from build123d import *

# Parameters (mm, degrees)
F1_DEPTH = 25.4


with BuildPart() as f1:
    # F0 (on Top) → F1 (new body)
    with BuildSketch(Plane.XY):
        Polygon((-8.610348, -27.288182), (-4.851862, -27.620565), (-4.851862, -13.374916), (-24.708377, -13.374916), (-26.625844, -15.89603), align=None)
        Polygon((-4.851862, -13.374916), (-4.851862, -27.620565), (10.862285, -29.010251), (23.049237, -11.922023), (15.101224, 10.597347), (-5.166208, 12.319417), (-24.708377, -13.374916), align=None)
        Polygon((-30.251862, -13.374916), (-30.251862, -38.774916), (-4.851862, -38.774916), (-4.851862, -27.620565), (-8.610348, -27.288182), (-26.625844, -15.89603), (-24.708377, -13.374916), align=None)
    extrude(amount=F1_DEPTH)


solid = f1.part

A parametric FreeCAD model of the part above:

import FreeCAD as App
import Part
import Sketcher

V = App.Vector
Q = App.Units.Quantity

doc = App.newDocument("Part")
body = doc.addObject("PartDesign::Body", "Body")

# Sketch on XY plane
sketch1 = doc.addObject("Sketcher::SketchObject", "Sketch")
body.addObject(sketch1)
sketch1.AttachmentSupport = (doc.XY_Plane, [""])
sketch1.MapMode = "FlatFace"
sketch1.addGeometry([
    Part.LineSegment(V(-4.851862, -27.620565, 0), V(10.862285, -29.010251, 0)),  # 0
    Part.LineSegment(V(10.862285, -29.010251, 0), V(23.049237, -11.922023, 0)),  # 1
    Part.LineSegment(V(23.049237, -11.922023, 0), V(15.101224, 10.597347, 0)),  # 2
    Part.LineSegment(V(15.101224, 10.597347, 0), V(-5.166208, 12.319417, 0)),  # 3
    Part.LineSegment(V(-5.166208, 12.319417, 0), V(-24.708377, -13.374916, 0)),  # 4
    Part.LineSegment(V(-24.708377, -13.374916, 0), V(-30.251862, -13.374916, 0)),  # 5
    Part.LineSegment(V(-30.251862, -13.374916, 0), V(-30.251862, -38.774916, 0)),  # 6
    Part.LineSegment(V(-30.251862, -38.774916, 0), V(-4.851862, -38.774916, 0)),  # 7
    Part.LineSegment(V(-4.851862, -38.774916, 0), V(-4.851862, -27.620565, 0)),  # 8
], False)
sketch1.addConstraint([
    Sketcher.Constraint("Coincident", 0, 2, 1, 1),
    Sketcher.Constraint("Coincident", 1, 2, 2, 1),
    Sketcher.Constraint("Coincident", 2, 2, 3, 1),
    Sketcher.Constraint("Coincident", 3, 2, 4, 1),
    Sketcher.Constraint("Coincident", 4, 2, 5, 1),
    Sketcher.Constraint("Coincident", 5, 2, 6, 1),
    Sketcher.Constraint("Coincident", 6, 2, 7, 1),
    Sketcher.Constraint("Coincident", 7, 2, 8, 1),
    Sketcher.Constraint("Coincident", 8, 2, 0, 1),
    Sketcher.Constraint("Horizontal", 5),
    Sketcher.Constraint("Vertical", 6),
    Sketcher.Constraint("Horizontal", 7),
    Sketcher.Constraint("Vertical", 8),
    Sketcher.Constraint("Equal", 7, 6),
    Sketcher.Constraint("DistanceX", 7, 1, 7, 2, Q("1 in")),
    Sketcher.Constraint("Distance", 4, 32.281498),
    Sketcher.Constraint("DistanceY", 8, 1, 8, 2, 11.154351),
    Sketcher.Constraint("DistanceX", 4, 2, 2, 2, 39.809601),
    Sketcher.Constraint("DistanceX", 5, 2, 1, 2, 53.301099),
    Sketcher.Constraint("Distance", 1, 20.988791),
    Sketcher.Constraint("Distance", 3, 20.34046),
    Sketcher.Constraint("DistanceX", 5, 2, 5, 1, 5.543485),
    Sketcher.Constraint("DistanceY", 0, 2, -1, 1, 29.010251),
    Sketcher.Constraint("DistanceX", 5, 2, -1, 1, 30.251862),
    Sketcher.Constraint("DistanceY", 0, 2, 1, 2, 17.088228),
    Sketcher.Constraint("DistanceY", 1, 2, 2, 2, 22.51937),
    Sketcher.Constraint("DistanceX", 3, 2, 2, 2, 20.267432),
])
pad1 = doc.addObject("PartDesign::Pad", "Pad")
body.addObject(pad1)
pad1.Profile = sketch1
pad1.Length = Q("1 in")

doc.recompute()
